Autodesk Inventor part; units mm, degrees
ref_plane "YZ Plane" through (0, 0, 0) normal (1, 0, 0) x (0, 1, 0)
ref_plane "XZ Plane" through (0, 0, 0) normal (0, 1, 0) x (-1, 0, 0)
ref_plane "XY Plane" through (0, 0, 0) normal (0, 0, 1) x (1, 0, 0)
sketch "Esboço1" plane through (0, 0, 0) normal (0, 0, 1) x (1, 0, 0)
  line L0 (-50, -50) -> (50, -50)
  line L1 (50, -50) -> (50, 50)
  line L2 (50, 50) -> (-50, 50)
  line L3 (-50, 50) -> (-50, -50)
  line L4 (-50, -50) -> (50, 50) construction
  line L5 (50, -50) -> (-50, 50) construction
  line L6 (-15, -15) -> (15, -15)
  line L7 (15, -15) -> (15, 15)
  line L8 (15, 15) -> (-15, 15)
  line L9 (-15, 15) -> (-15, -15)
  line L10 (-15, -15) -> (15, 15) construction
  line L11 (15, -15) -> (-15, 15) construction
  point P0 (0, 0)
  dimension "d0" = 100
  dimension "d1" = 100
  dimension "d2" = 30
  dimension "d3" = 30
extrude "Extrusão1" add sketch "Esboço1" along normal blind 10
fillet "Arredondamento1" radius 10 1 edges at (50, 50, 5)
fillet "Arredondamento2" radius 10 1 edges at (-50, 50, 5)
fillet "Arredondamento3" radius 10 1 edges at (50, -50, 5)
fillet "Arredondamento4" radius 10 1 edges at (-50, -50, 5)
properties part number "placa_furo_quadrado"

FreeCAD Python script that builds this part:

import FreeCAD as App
import Part
import Sketcher
from FreeCAD import Vector
Q = App.Units.Quantity


def edges_at(feature, points):
    """Names of the edges that pass closest to the given points."""
    edges = feature.Shape.Edges
    near = lambda p: min(range(len(edges)), key=lambda i: edges[i].distToShape(Part.Vertex(*p))[0])
    return sorted({f"Edge{near(p) + 1}" for p in points})


def add_polygon(sketch, points):
    """Adds a closed chain of lines whose ends are joined by coincident constraints."""
    first, n = sketch.GeometryCount, len(points)
    for a, b in zip(points, points[1:] + points[:1]):
        sketch.addGeometry(Part.LineSegment(App.Vector(*a, 0), App.Vector(*b, 0)), False)
    for i in range(n):
        sketch.addConstraint(Sketcher.Constraint("Coincident", first + i, 2, first + (i + 1) % n, 1))

doc = App.newDocument("Part")
params = doc.addObject("Spreadsheet::Sheet", "Params")
for row, (alias, value) in enumerate([
    ("sketch1_width", "3.937 in"),
    ("pad1_length", "0.3937008 in"),
    ("fillet_radius", "0.3937008 in"),
    ("fillet2_radius", "0.3937008 in"),
    ("fillet3_radius", "0.3937008 in"),
    ("fillet4_radius", "0.3937008 in"),
], start=1):
    params.set(f"A{row}", alias)
    params.set(f"B{row}", "=" + value)
    params.setAlias(f"B{row}", alias)

body = doc.addObject("PartDesign::Body", "Body")

sketch1 = body.newObject("Sketcher::SketchObject", "Sketch")
sketch1.AttachmentSupport = (doc.getObject("XY_Plane"), [""])
sketch1.MapMode = "FlatFace"
add_polygon(sketch1, [(-50, 50), (-50, -50), (50, -50), (50, 50)])
add_polygon(sketch1, [(15, -15), (-15, -15), (-15, 15), (15, 15)])
sketch1.addConstraint(Sketcher.Constraint("Vertical", 0))
sketch1.addConstraint(Sketcher.Constraint("Horizontal", 1))
sketch1.addConstraint(Sketcher.Constraint("Vertical", 2))
sketch1.addConstraint(Sketcher.Constraint("Horizontal", 3))
sketch1.addConstraint(Sketcher.Constraint("Horizontal", 4))
sketch1.addConstraint(Sketcher.Constraint("Vertical", 5))
sketch1.addConstraint(Sketcher.Constraint("Horizontal", 6))
sketch1.addConstraint(Sketcher.Constraint("Vertical", 7))
sketch1.addConstraint(Sketcher.Constraint("Symmetric", 0, 2, 2, 2, -1, 1))
sketch1.addConstraint(Sketcher.Constraint("Symmetric", 4, 2, 6, 2, -1, 1))
sketch1.addConstraint(Sketcher.Constraint("Equal", 3, 0))
sketch1.addConstraint(Sketcher.Constraint("Equal", 6, 5))
sketch1.addConstraint(Sketcher.Constraint("DistanceX", 1, 1, 1, 2, Q("3.937 in")))
sketch1.addConstraint(Sketcher.Constraint("DistanceX", 4, 2, 4, 1, Q("1.1811 in")))
sketch1.setExpression("Constraints[20]", "Params.sketch1_width")
pad1 = body.newObject("PartDesign::Pad", "Pad")
pad1.Profile = sketch1
pad1.setExpression("Length", "Params.pad1_length")
doc.recompute()

fillet = body.newObject("PartDesign::Fillet", "Fillet")
fillet.Base = (pad1, edges_at(pad1, [(50, 50, 5)]))
fillet.setExpression("Radius", "Params.fillet_radius")
doc.recompute()

fillet2 = body.newObject("PartDesign::Fillet", "Fillet001")
fillet2.Base = (fillet, edges_at(fillet, [(-50, 50, 5)]))
fillet2.setExpression("Radius", "Params.fillet2_radius")
doc.recompute()

fillet3 = body.newObject("PartDesign::Fillet", "Fillet002")
fillet3.Base = (fillet2, edges_at(fillet2, [(50, -50, 5)]))
fillet3.setExpression("Radius", "Params.fillet3_radius")
doc.recompute()

fillet4 = body.newObject("PartDesign::Fillet", "Fillet003")
fillet4.Base = (fillet3, edges_at(fillet3, [(-50, -50, 5)]))
fillet4.setExpression("Radius", "Params.fillet4_radius")

doc.recompute()
